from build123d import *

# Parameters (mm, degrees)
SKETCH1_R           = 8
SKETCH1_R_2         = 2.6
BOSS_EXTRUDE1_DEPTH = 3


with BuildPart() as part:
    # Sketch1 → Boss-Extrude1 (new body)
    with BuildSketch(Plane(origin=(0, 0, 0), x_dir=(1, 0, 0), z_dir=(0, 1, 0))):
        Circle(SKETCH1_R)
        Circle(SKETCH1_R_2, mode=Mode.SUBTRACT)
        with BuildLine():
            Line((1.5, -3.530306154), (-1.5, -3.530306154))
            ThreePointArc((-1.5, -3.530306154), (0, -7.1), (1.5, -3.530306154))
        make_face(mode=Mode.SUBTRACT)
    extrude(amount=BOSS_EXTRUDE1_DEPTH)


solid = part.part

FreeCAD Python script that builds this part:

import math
import FreeCAD as App
import Part
import Sketcher

doc = App.newDocument("Part")
body = doc.addObject("PartDesign::Body", "Body")

# Sketch on XZ plane
sketch1 = doc.addObject("Sketcher::SketchObject", "Sketch")
body.addObject(sketch1)
sketch1.AttachmentSupport = (doc.XZ_Plane, [""])
sketch1.MapMode = "FlatFace"
sketch1.addGeometry([
    Part.Circle(App.Vector(0, 0, 0), App.Vector(0, 0, 1), 8),
    Part.LineSegment(App.Vector(-1.5, 3.5, 0), App.Vector(1.5, 3.5, 0)),
    Part.ArcOfCircle(Part.Circle(App.Vector(0, 5, 0), App.Vector(0, 0, 1), 2.1), math.radians(-44), math.radians(224)),
    Part.Circle(App.Vector(0, 0, 0), App.Vector(0, 0, 1), 2.6),
], False)
sketch1.addConstraint([
    Sketcher.Constraint("Coincident", 1, 1, 2, 2),
    Sketcher.Constraint("Coincident", 2, 1, 1, 2),
    Sketcher.Constraint("Horizontal", 1),
    Sketcher.Constraint("Coincident", 0, 3, -1, 1),
    Sketcher.Constraint("Coincident", 3, 3, -1, 1),
    Sketcher.Constraint("PointOnObject", 2, 3, -2),
    Sketcher.Constraint("Diameter", 0, 16.0),
    Sketcher.Constraint("Diameter", 3, 5.2),
    Sketcher.Constraint("Radius", 2, 2.1),
    Sketcher.Constraint("DistanceX", 1, 1, 1, 2, 3.0),
    Sketcher.Constraint("DistanceY", -1, 1, 2, 3, 5.0),
])
pad1 = doc.addObject("PartDesign::Pad", "Pad")
body.addObject(pad1)
pad1.Profile = sketch1
pad1.Length = 3
pad1.Reversed = True

doc.recompute()
